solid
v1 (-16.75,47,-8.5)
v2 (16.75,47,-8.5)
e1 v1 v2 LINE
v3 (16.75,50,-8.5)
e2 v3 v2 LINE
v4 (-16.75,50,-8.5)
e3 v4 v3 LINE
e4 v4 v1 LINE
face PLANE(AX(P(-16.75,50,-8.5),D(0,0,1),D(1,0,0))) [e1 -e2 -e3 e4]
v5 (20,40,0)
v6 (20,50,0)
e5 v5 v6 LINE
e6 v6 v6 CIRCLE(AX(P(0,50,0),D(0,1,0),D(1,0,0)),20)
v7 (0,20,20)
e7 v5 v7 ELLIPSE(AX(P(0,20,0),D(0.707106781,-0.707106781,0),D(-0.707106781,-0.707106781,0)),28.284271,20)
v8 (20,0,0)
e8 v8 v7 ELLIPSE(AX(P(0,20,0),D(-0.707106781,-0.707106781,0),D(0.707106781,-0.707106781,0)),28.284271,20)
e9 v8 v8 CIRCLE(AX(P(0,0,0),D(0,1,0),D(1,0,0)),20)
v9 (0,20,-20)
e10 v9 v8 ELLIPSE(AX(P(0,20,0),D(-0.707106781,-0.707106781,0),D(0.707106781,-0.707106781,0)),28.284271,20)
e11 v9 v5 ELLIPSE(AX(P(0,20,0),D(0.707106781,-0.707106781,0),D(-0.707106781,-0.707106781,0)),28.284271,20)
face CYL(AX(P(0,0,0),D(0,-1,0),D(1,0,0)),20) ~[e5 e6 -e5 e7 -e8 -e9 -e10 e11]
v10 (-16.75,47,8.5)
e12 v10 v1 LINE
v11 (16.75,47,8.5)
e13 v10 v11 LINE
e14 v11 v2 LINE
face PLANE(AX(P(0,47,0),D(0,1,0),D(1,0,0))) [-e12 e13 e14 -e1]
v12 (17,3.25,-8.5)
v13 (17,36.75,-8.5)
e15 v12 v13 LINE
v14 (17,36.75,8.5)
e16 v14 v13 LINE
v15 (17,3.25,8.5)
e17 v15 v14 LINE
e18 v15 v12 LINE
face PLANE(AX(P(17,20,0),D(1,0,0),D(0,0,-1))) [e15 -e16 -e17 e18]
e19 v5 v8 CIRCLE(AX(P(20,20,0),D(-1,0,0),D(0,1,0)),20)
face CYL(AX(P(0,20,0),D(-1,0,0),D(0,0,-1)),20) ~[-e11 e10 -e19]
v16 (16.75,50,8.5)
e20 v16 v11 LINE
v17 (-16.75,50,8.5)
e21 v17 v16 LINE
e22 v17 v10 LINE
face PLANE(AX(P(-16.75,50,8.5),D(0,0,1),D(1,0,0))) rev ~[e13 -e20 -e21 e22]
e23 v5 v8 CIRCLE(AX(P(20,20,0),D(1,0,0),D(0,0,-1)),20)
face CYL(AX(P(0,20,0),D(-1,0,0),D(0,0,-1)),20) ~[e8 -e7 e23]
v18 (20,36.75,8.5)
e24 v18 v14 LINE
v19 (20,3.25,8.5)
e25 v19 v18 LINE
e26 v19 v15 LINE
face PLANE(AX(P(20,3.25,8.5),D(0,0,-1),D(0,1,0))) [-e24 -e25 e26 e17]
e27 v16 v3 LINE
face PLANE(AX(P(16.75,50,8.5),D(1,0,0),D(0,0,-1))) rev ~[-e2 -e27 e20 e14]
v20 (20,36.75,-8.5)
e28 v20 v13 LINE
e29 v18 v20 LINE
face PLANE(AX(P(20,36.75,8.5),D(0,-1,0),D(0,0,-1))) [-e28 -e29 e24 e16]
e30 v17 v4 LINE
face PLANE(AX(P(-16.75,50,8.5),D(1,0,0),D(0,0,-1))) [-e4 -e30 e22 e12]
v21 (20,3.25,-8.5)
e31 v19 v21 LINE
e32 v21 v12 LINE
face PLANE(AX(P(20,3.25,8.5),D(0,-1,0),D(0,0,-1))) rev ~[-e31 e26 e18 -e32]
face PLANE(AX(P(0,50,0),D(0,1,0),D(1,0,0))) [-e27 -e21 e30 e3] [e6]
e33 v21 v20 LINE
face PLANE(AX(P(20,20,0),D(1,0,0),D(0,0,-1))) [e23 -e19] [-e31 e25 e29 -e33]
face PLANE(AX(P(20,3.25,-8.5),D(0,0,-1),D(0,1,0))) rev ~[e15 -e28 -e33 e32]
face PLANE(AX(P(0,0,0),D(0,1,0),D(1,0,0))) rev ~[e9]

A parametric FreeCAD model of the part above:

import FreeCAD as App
import Part
import Sketcher
from FreeCAD import Vector


def add_polygon(sketch, points):
    """Adds a closed chain of lines whose ends are joined by coincident constraints."""
    first, n = sketch.GeometryCount, len(points)
    for a, b in zip(points, points[1:] + points[:1]):
        sketch.addGeometry(Part.LineSegment(App.Vector(*a, 0), App.Vector(*b, 0)), False)
    for i in range(n):
        sketch.addConstraint(Sketcher.Constraint("Coincident", first + i, 2, first + (i + 1) % n, 1))

doc = App.newDocument("Part")
body = doc.addObject("PartDesign::Body", "Body")

# Sketch on XZ plane
sketch1 = body.newObject("Sketcher::SketchObject", "Sketch")
sketch1.AttachmentSupport = (doc.getObject("XZ_Plane"), [""])
sketch1.MapMode = "FlatFace"
sketch1.addGeometry(Part.Circle(Vector(0, 0, 0), Vector(0, 0, 1), 20), False)
sketch1.addConstraint([
    Sketcher.Constraint("Coincident", 0, 3, -1, 1),
    Sketcher.Constraint("Diameter", 0, 40.0),
])
pad1 = body.newObject("PartDesign::Pad", "Pad")
pad1.Profile = sketch1
pad1.Length = 50
pad1.Reversed = True

# Sketch on YZ plane
sketch2 = body.newObject("Sketcher::SketchObject", "Sketch001")
sketch2.AttachmentSupport = (doc.getObject("YZ_Plane"), [""])
sketch2.MapMode = "FlatFace"
sketch2.addGeometry(Part.Circle(Vector(20, 0, 0), Vector(0, 0, 1), 20), False)
sketch2.addConstraint([
    Sketcher.Constraint("PointOnObject", 0, 3, -1),
    Sketcher.Constraint("Diameter", 0, 40.0),
    Sketcher.Constraint("DistanceX", -1, 1, 0, 3, 20.0),
])
pad2 = body.newObject("PartDesign::Pad", "Pad001")
pad2.Profile = sketch2
pad2.Length = 20

# Sketch on XZ plane
sketch3 = body.newObject("Sketcher::SketchObject", "Sketch002")
sketch3.AttachmentSupport = (doc.getObject("XZ_Plane"), [""])
sketch3.MapMode = "FlatFace"
sketch3.AttachmentOffset = App.Placement(Vector(0, 0, -50), App.Rotation())
add_polygon(sketch3, [(-17, -8), (-17, 8), (17, 8), (17, -8)])  # lines 0-3
sketch3.addConstraint([
    Sketcher.Constraint("Vertical", 0),
    Sketcher.Constraint("Horizontal", 1),
    Sketcher.Constraint("Vertical", 2),
    Sketcher.Constraint("Horizontal", 3),
    Sketcher.Constraint("Symmetric", 0, 2, 2, 2, -1, 1),
    Sketcher.Constraint("DistanceY", 0, 1, 0, 2, 17.0),
    Sketcher.Constraint("DistanceX", 1, 1, 1, 2, 33.5),
])
pocket1 = body.newObject("PartDesign::Pocket", "Pocket")
pocket1.Profile = sketch3
pocket1.Length = 3
pocket1.Reversed = True

# Sketch on YZ plane
sketch4 = body.newObject("Sketcher::SketchObject", "Sketch003")
sketch4.AttachmentSupport = (doc.getObject("YZ_Plane"), [""])
sketch4.MapMode = "FlatFace"
sketch4.AttachmentOffset = App.Placement(Vector(0, 0, 20), App.Rotation())
add_polygon(sketch4, [(37, 8), (3, 8), (3, -8), (37, -8)])  # lines 0-3
sketch4.addConstraint([
    Sketcher.Constraint("Horizontal", 0),
    Sketcher.Constraint("Vertical", 1),
    Sketcher.Constraint("Horizontal", 2),
    Sketcher.Constraint("Vertical", 3),
    Sketcher.Constraint("DistanceY", 1, 2, 1, 1, 17.0),
    Sketcher.Constraint("DistanceX", 0, 2, 0, 1, 33.5),
    Sketcher.Constraint("DistanceY", -1, 1, 0, 2, 8.5),
    Sketcher.Constraint("DistanceX", -1, 1, 0, 2, 3.25),
])
pocket2 = body.newObject("PartDesign::Pocket", "Pocket001")
pocket2.Profile = sketch4
pocket2.Length = 3

doc.recompute()
